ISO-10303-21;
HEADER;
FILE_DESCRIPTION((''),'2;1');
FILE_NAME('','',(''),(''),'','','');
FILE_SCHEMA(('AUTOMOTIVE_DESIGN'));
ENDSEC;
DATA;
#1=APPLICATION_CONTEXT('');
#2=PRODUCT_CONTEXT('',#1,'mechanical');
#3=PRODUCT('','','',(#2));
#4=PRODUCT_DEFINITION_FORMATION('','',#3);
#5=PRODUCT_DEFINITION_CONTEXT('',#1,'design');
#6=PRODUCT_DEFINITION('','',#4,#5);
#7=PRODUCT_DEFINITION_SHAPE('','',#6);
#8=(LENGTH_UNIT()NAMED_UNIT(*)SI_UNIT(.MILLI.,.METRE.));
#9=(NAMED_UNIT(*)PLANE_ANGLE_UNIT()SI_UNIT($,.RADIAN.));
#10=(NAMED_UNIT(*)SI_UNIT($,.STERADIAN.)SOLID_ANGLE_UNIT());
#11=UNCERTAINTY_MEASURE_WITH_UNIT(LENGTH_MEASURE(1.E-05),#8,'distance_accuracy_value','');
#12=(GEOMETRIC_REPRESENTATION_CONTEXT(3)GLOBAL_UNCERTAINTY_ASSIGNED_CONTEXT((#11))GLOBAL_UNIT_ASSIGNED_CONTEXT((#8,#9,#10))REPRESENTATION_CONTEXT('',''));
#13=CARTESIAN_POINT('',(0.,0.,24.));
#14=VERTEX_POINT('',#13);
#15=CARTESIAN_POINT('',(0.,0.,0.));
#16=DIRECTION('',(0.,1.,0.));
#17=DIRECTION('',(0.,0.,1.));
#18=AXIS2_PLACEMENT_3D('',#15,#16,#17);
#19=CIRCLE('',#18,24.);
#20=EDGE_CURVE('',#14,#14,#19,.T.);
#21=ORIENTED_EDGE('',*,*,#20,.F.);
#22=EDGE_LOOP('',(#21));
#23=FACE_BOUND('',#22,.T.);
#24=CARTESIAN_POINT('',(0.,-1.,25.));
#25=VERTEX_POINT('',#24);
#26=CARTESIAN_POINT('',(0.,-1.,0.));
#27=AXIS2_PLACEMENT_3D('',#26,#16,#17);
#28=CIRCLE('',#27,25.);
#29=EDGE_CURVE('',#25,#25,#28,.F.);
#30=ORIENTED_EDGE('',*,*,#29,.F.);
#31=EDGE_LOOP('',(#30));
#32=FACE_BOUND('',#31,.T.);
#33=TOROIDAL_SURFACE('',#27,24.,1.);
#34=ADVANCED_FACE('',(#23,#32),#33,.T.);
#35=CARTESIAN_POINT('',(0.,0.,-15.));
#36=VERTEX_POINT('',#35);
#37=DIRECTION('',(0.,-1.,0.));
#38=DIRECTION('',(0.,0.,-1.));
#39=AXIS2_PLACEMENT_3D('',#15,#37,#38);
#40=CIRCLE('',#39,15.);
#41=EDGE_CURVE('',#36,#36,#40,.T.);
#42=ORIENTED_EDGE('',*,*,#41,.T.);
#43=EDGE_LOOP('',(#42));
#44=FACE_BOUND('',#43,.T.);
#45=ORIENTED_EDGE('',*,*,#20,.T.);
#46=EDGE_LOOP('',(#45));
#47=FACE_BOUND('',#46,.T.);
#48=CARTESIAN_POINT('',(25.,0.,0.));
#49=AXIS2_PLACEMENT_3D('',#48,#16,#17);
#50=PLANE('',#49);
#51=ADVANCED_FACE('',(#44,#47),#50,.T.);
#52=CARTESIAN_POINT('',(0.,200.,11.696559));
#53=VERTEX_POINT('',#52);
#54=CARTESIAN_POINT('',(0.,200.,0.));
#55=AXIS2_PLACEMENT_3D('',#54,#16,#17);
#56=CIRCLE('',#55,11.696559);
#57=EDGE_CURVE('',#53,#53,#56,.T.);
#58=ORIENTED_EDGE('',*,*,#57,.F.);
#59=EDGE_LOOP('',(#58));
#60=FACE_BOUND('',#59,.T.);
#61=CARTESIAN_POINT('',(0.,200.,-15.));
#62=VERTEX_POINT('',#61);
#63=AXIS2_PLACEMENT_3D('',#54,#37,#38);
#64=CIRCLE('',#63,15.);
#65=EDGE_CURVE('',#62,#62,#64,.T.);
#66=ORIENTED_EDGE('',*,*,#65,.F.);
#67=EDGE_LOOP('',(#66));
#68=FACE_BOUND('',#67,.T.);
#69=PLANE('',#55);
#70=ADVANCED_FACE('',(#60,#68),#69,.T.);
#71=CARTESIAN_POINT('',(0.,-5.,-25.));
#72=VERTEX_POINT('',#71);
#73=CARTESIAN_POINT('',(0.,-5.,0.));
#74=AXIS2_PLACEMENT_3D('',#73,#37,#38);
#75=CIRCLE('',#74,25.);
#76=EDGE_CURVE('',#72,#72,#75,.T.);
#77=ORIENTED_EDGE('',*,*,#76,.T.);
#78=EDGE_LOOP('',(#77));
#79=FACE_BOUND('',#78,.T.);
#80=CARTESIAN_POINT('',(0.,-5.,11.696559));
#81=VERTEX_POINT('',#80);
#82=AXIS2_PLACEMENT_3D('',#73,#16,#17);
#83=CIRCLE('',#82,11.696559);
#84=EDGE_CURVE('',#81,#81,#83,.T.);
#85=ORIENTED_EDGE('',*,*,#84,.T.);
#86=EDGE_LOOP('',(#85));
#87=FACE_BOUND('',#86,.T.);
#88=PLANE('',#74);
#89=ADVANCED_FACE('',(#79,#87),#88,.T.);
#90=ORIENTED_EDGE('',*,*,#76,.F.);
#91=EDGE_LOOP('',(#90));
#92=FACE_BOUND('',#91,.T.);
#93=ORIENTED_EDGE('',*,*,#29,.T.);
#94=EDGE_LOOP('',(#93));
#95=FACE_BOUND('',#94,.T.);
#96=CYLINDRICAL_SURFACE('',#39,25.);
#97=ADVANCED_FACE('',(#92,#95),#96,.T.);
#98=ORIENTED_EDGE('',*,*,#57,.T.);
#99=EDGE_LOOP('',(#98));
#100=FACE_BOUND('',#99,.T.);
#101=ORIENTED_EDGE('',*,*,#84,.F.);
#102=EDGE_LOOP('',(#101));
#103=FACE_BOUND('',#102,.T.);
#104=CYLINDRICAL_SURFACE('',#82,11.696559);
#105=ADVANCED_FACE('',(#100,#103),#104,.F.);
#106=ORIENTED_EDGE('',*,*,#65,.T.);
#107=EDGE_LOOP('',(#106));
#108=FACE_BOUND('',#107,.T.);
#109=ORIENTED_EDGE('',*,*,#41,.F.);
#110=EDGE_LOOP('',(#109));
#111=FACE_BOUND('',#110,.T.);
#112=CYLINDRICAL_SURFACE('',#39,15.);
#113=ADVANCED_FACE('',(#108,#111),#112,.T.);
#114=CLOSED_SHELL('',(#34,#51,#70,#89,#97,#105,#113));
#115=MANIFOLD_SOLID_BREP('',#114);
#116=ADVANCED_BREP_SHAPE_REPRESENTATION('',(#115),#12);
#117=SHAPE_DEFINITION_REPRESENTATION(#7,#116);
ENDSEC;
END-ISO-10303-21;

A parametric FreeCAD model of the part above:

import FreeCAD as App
import Part
import Sketcher


def edges_at(feature, points):
    """Names of the edges that pass closest to the given points."""
    edges = feature.Shape.Edges
    near = lambda p: min(range(len(edges)), key=lambda i: edges[i].distToShape(Part.Vertex(*p))[0])
    return sorted({f"Edge{near(p) + 1}" for p in points})


def add_polygon(sketch, points):
    """Adds a closed chain of lines whose ends are joined by coincident constraints."""
    first, n = sketch.GeometryCount, len(points)
    for a, b in zip(points, points[1:] + points[:1]):
        sketch.addGeometry(Part.LineSegment(App.Vector(*a, 0), App.Vector(*b, 0)), False)
    for i in range(n):
        sketch.addConstraint(Sketcher.Constraint("Coincident", first + i, 2, first + (i + 1) % n, 1))

doc = App.newDocument("Part")
body = doc.addObject("PartDesign::Body", "Body")

sketch1 = body.newObject("Sketcher::SketchObject", "Sketch")
sketch1.AttachmentSupport = (doc.getObject("XY_Plane"), [""])
sketch1.MapMode = "FlatFace"
add_polygon(sketch1, [(0, 200), (0, -5), (25, -5), (25, 0), (15, 0), (15, 200)])
sketch1.addConstraint(Sketcher.Constraint("Vertical", 0))
sketch1.addConstraint(Sketcher.Constraint("Horizontal", 1))
sketch1.addConstraint(Sketcher.Constraint("Vertical", 2))
sketch1.addConstraint(Sketcher.Constraint("Horizontal", 3))
sketch1.addConstraint(Sketcher.Constraint("Vertical", 4))
sketch1.addConstraint(Sketcher.Constraint("Horizontal", 5))
sketch1.addConstraint(Sketcher.Constraint("PointOnObject", 0, 2, -2))
sketch1.addConstraint(Sketcher.Constraint("PointOnObject", 2, 2, -1))
sketch1.addConstraint(Sketcher.Constraint("DistanceX", 1, 1, 1, 2, 25.0))
sketch1.addConstraint(Sketcher.Constraint("DistanceX", 3, 2, 3, 1, 10.0))
sketch1.addConstraint(Sketcher.Constraint("DistanceY", 0, 2, 0, 1, 205.0))
sketch1.addConstraint(Sketcher.Constraint("DistanceY", 2, 1, 2, 2, 5.0))
revolution = body.newObject("PartDesign::Revolution", "Revolution")
revolution.Profile = sketch1
revolution.ReferenceAxis = (sketch1, ["V_Axis"])
revolution.Angle = 360
doc.recompute()

fillet = body.newObject("PartDesign::Fillet", "Fillet")
fillet.Base = (revolution, edges_at(revolution, [(-25, 0, 0)]))
fillet.Radius = 1

sketch2 = body.newObject("Sketcher::SketchObject", "Sketch001")
sketch2.AttachmentSupport = (doc.getObject("XZ_Plane"), [""])
sketch2.MapMode = "FlatFace"
sketch2.AttachmentOffset = App.Placement(App.Vector(0, 0, -200), App.Rotation())
sketch2.addGeometry(Part.Circle(App.Vector(0, 0, 0), App.Vector(0, 0, 1), 12), False)
sketch2.addConstraint(Sketcher.Constraint("Coincident", 0, 3, -1, 1))
sketch2.addConstraint(Sketcher.Constraint("Diameter", 0, 23.393119))
pocket1 = body.newObject("PartDesign::Pocket", "Pocket")
pocket1.Profile = sketch2
pocket1.Type = "ThroughAll"
pocket1.Reversed = True

doc.recompute()
